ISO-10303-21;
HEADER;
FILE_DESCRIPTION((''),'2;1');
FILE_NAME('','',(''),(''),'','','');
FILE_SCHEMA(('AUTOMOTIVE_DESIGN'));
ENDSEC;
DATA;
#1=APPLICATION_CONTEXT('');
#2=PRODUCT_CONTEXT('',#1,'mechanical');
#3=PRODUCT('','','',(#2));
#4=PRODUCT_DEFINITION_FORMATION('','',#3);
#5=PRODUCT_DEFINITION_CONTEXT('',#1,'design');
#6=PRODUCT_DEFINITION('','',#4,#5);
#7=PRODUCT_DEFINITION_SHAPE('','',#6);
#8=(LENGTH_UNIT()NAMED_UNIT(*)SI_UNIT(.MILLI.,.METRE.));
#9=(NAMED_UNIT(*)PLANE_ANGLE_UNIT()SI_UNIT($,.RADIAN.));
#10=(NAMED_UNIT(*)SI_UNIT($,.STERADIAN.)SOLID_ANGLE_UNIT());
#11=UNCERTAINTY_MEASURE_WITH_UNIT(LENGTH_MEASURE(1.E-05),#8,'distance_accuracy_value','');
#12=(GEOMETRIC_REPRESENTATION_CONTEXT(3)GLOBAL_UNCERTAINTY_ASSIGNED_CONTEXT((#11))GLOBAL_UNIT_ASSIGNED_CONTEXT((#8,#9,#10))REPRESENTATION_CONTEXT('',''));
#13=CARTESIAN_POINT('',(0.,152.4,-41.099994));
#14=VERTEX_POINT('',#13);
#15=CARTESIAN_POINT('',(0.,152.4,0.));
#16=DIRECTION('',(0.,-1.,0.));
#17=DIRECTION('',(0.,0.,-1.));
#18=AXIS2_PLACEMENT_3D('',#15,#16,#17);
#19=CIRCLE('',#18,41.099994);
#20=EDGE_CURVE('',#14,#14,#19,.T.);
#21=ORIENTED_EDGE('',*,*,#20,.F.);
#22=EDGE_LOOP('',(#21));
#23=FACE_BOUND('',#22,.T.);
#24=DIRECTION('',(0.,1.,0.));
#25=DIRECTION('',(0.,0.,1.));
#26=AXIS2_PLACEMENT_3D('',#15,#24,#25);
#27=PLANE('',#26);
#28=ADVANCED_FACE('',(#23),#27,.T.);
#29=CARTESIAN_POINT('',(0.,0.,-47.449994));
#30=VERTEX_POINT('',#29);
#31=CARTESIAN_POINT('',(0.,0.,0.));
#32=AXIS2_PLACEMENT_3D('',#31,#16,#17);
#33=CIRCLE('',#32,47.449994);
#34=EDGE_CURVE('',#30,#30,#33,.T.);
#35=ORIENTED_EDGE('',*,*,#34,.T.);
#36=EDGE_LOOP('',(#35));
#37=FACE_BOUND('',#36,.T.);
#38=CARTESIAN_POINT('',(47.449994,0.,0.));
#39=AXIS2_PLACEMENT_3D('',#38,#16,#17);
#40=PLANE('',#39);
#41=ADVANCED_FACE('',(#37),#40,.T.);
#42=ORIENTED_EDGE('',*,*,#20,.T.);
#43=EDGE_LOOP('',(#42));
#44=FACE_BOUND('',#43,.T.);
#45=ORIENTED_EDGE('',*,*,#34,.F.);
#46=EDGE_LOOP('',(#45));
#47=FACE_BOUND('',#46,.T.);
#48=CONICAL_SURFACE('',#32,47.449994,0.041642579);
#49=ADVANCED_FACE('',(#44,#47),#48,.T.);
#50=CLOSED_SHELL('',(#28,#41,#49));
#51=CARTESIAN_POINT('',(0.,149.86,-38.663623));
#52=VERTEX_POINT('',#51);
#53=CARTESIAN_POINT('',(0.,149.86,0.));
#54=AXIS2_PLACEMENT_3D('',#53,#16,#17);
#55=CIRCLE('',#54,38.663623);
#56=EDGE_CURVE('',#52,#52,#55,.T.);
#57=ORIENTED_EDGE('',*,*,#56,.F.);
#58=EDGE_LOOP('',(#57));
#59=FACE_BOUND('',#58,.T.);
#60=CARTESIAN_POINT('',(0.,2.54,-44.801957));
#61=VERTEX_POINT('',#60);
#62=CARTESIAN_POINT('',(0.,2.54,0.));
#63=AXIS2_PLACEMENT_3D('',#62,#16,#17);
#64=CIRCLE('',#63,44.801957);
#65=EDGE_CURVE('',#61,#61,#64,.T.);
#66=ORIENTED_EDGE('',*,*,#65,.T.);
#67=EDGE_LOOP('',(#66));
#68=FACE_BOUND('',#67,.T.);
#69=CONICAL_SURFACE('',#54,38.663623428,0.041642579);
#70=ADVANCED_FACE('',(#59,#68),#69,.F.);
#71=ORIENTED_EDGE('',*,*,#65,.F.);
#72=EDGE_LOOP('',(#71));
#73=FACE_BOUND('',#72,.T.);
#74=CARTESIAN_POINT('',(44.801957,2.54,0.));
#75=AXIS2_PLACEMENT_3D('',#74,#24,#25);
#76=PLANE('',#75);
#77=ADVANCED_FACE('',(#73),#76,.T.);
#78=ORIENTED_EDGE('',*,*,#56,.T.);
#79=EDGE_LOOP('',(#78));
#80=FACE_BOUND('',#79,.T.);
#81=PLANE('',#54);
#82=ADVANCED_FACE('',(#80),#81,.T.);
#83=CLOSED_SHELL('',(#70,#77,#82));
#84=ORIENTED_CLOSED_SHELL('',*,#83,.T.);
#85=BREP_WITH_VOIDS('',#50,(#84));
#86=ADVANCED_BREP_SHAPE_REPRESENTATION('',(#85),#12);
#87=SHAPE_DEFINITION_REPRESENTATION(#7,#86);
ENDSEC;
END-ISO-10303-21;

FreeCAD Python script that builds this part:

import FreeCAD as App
import Part
import Sketcher
Q = App.Units.Quantity


def add_polygon(sketch, points):
    """Adds a closed chain of lines whose ends are joined by coincident constraints."""
    first, n = sketch.GeometryCount, len(points)
    for a, b in zip(points, points[1:] + points[:1]):
        sketch.addGeometry(Part.LineSegment(App.Vector(*a, 0), App.Vector(*b, 0)), False)
    for i in range(n):
        sketch.addConstraint(Sketcher.Constraint("Coincident", first + i, 2, first + (i + 1) % n, 1))

doc = App.newDocument("Part")
body = doc.addObject("PartDesign::Body", "Body")

# Sketch on XY plane
sketch1 = doc.addObject("Sketcher::SketchObject", "Sketch")
body.addObject(sketch1)
sketch1.AttachmentSupport = (doc.XY_Plane, [""])
sketch1.MapMode = "FlatFace"
add_polygon(sketch1, [(0, 2.5), (0, 0), (47.4, 0), (41.1, 152.4), (0, 152.4), (0, 149.9), (38.7, 149.9), (44.8, 2.5)])  # lines 0-7
sketch1.addConstraint(Sketcher.Constraint("Vertical", 0))
sketch1.addConstraint(Sketcher.Constraint("Horizontal", 1))
sketch1.addConstraint(Sketcher.Constraint("Horizontal", 3))
sketch1.addConstraint(Sketcher.Constraint("Vertical", 4))
sketch1.addConstraint(Sketcher.Constraint("Horizontal", 5))
sketch1.addConstraint(Sketcher.Constraint("Horizontal", 7))
sketch1.addConstraint(Sketcher.Constraint("Coincident", 0, 2, -1, 1))
sketch1.addConstraint(Sketcher.Constraint("PointOnObject", 3, 2, -2))
sketch1.addConstraint(Sketcher.Constraint("Parallel", 2, 6))
sketch1.addConstraint(Sketcher.Constraint("Equal", 0, 4))
sketch1.addConstraint(Sketcher.Constraint("DistanceY", 0, 2, 0, 1, Q("0.1 in")))
sketch1.addConstraint(Sketcher.Constraint("DistanceY", -1, 1, 2, 2, Q("6 in")))
sketch1.addConstraint(Sketcher.Constraint("DistanceX", 2, 2, 1, 2, Q("0.25 in")))
sketch1.addConstraint(Sketcher.Constraint("DistanceX", 1, 1, 1, 2, Q("47.449994 mm")))
sketch1.addConstraint(Sketcher.Constraint("DistanceX", 5, 1, 5, 2, Q("38.663623 mm")))
revolution = doc.addObject("PartDesign::Revolution", "Revolution")
body.addObject(revolution)
revolution.Profile = sketch1
revolution.ReferenceAxis = (sketch1, ["V_Axis"])
revolution.Angle = 360

doc.recompute()
